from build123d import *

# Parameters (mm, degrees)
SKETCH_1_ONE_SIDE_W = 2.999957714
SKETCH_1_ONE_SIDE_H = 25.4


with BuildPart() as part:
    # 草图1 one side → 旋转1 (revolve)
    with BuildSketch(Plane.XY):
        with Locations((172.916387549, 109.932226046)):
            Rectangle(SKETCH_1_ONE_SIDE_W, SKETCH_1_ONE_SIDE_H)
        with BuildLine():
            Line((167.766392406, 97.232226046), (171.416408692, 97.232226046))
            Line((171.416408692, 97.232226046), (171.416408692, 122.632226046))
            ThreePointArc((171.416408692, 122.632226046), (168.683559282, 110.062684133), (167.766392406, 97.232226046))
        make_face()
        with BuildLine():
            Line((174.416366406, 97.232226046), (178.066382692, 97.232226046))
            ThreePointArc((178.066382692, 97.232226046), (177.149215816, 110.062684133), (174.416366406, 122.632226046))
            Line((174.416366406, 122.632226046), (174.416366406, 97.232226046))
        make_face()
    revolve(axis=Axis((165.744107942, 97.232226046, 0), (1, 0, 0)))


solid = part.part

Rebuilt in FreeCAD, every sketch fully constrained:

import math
import FreeCAD as App
import Part
import Sketcher

V = App.Vector

doc = App.newDocument("Part")
body = doc.addObject("PartDesign::Body", "Body")

# Sketch on XY plane
sketch1 = body.newObject("Sketcher::SketchObject", "Sketch")
sketch1.AttachmentSupport = (doc.getObject("XY_Plane"), [""])
sketch1.MapMode = "FlatFace"
sketch1.addGeometry(Part.LineSegment(V(174.4, 122.6, 0), V(171.4, 122.6, 0)), False)
sketch1.addGeometry(Part.ArcOfCircle(Part.Circle(V(258, 97.2, 0), V(0, 0, 1), 90.2), math.radians(163.64), math.radians(180)), False)
sketch1.addGeometry(Part.LineSegment(V(167.8, 97.2, 0), V(178.1, 97.2, 0)), False)
sketch1.addGeometry(Part.ArcOfCircle(Part.Circle(V(87.9, 97.2, 0), V(0, 0, 1), 90.2), math.radians(0), math.radians(16.36)), False)
sketch1.addGeometry(Part.LineSegment(V(87.9, 97.2, 0), V(258, 97.2, 0)), True)  # axis
sketch1.addConstraint(Sketcher.Constraint("Coincident", 0, 2, 1, 1))
sketch1.addConstraint(Sketcher.Constraint("Coincident", 1, 2, 2, 1))
sketch1.addConstraint(Sketcher.Constraint("Coincident", 2, 2, 3, 1))
sketch1.addConstraint(Sketcher.Constraint("Coincident", 3, 2, 0, 1))
sketch1.addConstraint(Sketcher.Constraint("Horizontal", 0))
sketch1.addConstraint(Sketcher.Constraint("Horizontal", 2))
sketch1.addConstraint(Sketcher.Constraint("Horizontal", 4))
sketch1.addConstraint(Sketcher.Constraint("Coincident", 4, 1, 3, 3))
sketch1.addConstraint(Sketcher.Constraint("Coincident", 4, 2, 1, 3))
sketch1.addConstraint(Sketcher.Constraint("Equal", 1, 3))
sketch1.addConstraint(Sketcher.Constraint("Horizontal", 3, 3, 1, 2))
sketch1.addConstraint(Sketcher.Constraint("DistanceY", 3, 3, 0, 2, 25.4))
sketch1.addConstraint(Sketcher.Constraint("DistanceX", 4, 1, 4, 2, 170.105402))
sketch1.addConstraint(Sketcher.Constraint("Radius", 1, 90.202696))
sketch1.addConstraint(Sketcher.Constraint("DistanceX", -1, 1, 1, 3, 257.969088))
sketch1.addConstraint(Sketcher.Constraint("DistanceY", -1, 1, 1, 3, 97.232226))
revolution = body.newObject("PartDesign::Revolution", "Revolution")
revolution.Profile = sketch1
revolution.ReferenceAxis = (sketch1, ["Axis0"])
revolution.Angle = 360

doc.recompute()
